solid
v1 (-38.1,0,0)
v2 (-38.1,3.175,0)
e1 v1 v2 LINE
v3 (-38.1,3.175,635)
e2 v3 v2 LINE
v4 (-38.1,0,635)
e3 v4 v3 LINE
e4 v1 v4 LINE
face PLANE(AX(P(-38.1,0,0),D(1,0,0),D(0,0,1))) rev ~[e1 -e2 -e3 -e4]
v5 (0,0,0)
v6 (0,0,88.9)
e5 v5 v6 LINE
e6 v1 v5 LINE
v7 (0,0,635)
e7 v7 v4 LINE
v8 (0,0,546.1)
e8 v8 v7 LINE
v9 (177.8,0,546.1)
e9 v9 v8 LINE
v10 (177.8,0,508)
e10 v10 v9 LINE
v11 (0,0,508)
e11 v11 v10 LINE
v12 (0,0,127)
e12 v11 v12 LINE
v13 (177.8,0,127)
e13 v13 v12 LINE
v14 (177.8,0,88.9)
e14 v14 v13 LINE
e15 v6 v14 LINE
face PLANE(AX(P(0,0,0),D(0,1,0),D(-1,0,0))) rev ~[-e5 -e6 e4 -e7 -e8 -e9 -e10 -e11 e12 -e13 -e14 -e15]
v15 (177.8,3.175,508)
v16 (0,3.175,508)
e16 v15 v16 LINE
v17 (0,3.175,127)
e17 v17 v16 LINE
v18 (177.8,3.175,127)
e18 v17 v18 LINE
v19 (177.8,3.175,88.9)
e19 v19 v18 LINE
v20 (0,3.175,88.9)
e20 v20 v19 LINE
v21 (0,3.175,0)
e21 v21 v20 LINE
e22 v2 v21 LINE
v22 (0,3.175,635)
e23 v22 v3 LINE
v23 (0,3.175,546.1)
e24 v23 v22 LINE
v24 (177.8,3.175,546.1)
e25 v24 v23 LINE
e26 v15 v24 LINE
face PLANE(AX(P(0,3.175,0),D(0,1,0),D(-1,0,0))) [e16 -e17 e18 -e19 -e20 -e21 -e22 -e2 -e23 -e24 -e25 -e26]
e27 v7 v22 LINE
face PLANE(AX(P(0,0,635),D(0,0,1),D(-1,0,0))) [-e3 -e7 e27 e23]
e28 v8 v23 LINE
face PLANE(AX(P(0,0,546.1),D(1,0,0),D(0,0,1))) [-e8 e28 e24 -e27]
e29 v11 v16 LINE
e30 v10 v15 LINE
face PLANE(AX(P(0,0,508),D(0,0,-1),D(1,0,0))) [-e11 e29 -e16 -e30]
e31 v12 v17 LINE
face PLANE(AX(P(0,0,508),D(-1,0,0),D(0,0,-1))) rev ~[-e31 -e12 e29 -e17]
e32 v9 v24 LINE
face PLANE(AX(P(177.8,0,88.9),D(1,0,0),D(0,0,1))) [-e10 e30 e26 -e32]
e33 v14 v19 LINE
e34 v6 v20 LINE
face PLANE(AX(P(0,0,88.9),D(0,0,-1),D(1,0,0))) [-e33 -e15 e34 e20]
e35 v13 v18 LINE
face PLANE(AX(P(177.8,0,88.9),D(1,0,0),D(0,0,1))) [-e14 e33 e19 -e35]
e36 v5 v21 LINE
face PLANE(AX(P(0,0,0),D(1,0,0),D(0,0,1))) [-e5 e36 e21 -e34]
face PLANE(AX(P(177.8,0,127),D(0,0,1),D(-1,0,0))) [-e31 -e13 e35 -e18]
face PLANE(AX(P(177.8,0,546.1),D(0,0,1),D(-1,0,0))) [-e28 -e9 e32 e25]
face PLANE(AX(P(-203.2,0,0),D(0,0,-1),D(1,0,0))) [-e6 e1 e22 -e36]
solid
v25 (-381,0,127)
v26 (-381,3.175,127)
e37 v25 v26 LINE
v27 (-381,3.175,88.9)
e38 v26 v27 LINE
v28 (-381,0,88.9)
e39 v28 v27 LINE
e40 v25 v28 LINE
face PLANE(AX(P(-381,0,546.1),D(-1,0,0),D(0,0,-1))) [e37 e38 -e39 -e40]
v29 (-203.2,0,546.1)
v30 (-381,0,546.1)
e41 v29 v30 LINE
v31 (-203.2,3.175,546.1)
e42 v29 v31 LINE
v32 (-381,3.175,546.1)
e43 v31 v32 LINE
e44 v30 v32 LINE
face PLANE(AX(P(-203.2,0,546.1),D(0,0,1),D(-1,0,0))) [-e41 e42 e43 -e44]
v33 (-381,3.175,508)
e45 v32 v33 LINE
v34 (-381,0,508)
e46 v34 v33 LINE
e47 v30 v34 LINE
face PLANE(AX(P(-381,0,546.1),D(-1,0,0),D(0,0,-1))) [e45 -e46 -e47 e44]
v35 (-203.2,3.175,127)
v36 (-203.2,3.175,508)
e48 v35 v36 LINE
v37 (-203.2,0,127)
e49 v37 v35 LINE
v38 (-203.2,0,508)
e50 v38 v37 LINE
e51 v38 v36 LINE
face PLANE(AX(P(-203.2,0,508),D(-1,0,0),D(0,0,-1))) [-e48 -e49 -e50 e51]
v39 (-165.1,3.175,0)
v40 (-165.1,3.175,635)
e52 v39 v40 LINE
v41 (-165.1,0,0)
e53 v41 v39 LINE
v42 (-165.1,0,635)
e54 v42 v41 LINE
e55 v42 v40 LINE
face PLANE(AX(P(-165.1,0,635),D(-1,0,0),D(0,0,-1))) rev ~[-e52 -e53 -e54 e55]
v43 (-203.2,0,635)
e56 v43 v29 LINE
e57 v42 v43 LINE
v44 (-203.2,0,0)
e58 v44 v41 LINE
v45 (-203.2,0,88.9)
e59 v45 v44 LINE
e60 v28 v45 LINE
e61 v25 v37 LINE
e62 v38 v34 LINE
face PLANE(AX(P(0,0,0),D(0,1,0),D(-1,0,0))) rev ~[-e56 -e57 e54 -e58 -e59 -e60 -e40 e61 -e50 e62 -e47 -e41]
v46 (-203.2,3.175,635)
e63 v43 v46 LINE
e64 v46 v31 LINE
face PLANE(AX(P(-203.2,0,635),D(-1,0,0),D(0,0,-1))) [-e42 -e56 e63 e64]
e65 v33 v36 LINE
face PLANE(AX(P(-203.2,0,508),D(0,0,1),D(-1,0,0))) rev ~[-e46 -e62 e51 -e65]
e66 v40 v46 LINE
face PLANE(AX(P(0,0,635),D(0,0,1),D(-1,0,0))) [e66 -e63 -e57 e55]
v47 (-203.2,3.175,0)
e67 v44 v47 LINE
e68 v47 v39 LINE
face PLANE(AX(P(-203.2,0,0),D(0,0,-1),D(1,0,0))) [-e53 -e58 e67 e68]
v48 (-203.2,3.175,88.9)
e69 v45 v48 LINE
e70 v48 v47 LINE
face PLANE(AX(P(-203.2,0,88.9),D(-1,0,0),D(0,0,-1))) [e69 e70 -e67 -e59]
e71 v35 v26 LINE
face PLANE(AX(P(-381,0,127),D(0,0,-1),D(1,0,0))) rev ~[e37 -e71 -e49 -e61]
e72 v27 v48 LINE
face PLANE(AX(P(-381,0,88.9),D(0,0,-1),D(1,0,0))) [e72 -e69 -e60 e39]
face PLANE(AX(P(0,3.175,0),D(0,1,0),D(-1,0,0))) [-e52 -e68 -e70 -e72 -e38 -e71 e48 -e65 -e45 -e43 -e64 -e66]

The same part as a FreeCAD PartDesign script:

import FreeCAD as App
import Part
import Sketcher

V = App.Vector
Q = App.Units.Quantity

doc = App.newDocument("Part")
params = doc.addObject("Spreadsheet::Sheet", "Params")
for row, (alias, value) in enumerate([
    ("sketch1_width", "7 in"),
    ("sketch1_height", "3.5 in"),
    ("pad1_length", "0.125 in"),
    ("sketch2_width", "5 in"),
    ("sketch2_width2", "7 in"),
    ("sketch2_height", "25 in"),
    ("pocket1_length", "1 in"),
], start=1):
    params.set(f"A{row}", alias)
    params.set(f"B{row}", "=" + value)
    params.setAlias(f"B{row}", alias)

body = doc.addObject("PartDesign::Body", "Body")
body.AllowCompound = True

# Sketch on XZ plane
sketch1 = doc.addObject("Sketcher::SketchObject", "Sketch")
body.addObject(sketch1)
sketch1.AttachmentSupport = (doc.XZ_Plane, [""])
sketch1.MapMode = "FlatFace"
sketch1.addGeometry([
    Part.LineSegment(V(0, 88.9, 0), V(0, 0, 0)),  # 0
    Part.LineSegment(V(0, 0, 0), V(-203.2, 0, 0)),  # 1
    Part.LineSegment(V(-203.2, 0, 0), V(-203.2, 88.9, 0)),  # 2
    Part.LineSegment(V(-203.2, 88.9, 0), V(-381, 88.9, 0)),  # 3
    Part.LineSegment(V(-381, 88.9, 0), V(-381, 546.1, 0)),  # 4
    Part.LineSegment(V(-381, 546.1, 0), V(-203.2, 546.1, 0)),  # 5
    Part.LineSegment(V(-203.2, 546.1, 0), V(-203.2, 635, 0)),  # 6
    Part.LineSegment(V(-203.2, 635, 0), V(0, 635, 0)),  # 7
    Part.LineSegment(V(0, 635, 0), V(0, 546.1, 0)),  # 8
    Part.LineSegment(V(0, 546.1, 0), V(177.8, 546.1, 0)),  # 9
    Part.LineSegment(V(177.8, 546.1, 0), V(177.8, 88.9, 0)),  # 10
    Part.LineSegment(V(177.8, 88.9, 0), V(0, 88.9, 0)),  # 11
], False)
sketch1.addConstraint([
    Sketcher.Constraint("Coincident", 0, 2, 1, 1),
    Sketcher.Constraint("Coincident", 1, 2, 2, 1),
    Sketcher.Constraint("Coincident", 2, 2, 3, 1),
    Sketcher.Constraint("Coincident", 3, 2, 4, 1),
    Sketcher.Constraint("Coincident", 4, 2, 5, 1),
    Sketcher.Constraint("Coincident", 5, 2, 6, 1),
    Sketcher.Constraint("Coincident", 6, 2, 7, 1),
    Sketcher.Constraint("Coincident", 7, 2, 8, 1),
    Sketcher.Constraint("Coincident", 8, 2, 9, 1),
    Sketcher.Constraint("Coincident", 9, 2, 10, 1),
    Sketcher.Constraint("Coincident", 10, 2, 11, 1),
    Sketcher.Constraint("Coincident", 11, 2, 0, 1),
    Sketcher.Constraint("Vertical", 0),
    Sketcher.Constraint("Horizontal", 1),
    Sketcher.Constraint("Vertical", 2),
    Sketcher.Constraint("Horizontal", 3),
    Sketcher.Constraint("Vertical", 4),
    Sketcher.Constraint("Horizontal", 5),
    Sketcher.Constraint("Vertical", 6),
    Sketcher.Constraint("Horizontal", 7),
    Sketcher.Constraint("Vertical", 8),
    Sketcher.Constraint("Horizontal", 9),
    Sketcher.Constraint("Vertical", 10),
    Sketcher.Constraint("Horizontal", 11),
    Sketcher.Constraint("Coincident", 0, 2, -1, 1),
    Sketcher.Constraint("PointOnObject", 7, 2, -2),
    Sketcher.Constraint("Horizontal", 5, 2, 8, 2),
    Sketcher.Constraint("Horizontal", 3, 2, 10, 2),
    Sketcher.Constraint("Vertical", 2, 2, 5, 2),
    Sketcher.Constraint("Equal", 5, 9),
    Sketcher.Constraint("Equal", 2, 6),
    Sketcher.Constraint("DistanceX", 3, 2, 3, 1, Q("7 in")),
    Sketcher.Constraint("DistanceY", 0, 2, 0, 1, Q("3.5 in")),
    Sketcher.Constraint("DistanceY", -1, 1, 6, 2, Q("25 in")),
    Sketcher.Constraint("DistanceX", 4, 2, 9, 2, Q("22 in")),
])
sketch1.setExpression("Constraints[31]", "Params.sketch1_width")
sketch1.setExpression("Constraints[32]", "Params.sketch1_height")
pad1 = doc.addObject("PartDesign::Pad", "Pad")
body.addObject(pad1)
pad1.Profile = sketch1
pad1.setExpression("Length", "Params.pad1_length")
pad1.Reversed = True

# Sketch on XZ plane
sketch2 = doc.addObject("Sketcher::SketchObject", "Sketch001")
body.addObject(sketch2)
sketch2.AttachmentSupport = (doc.XZ_Plane, [""])
sketch2.MapMode = "FlatFace"
sketch2.addGeometry([
    Part.LineSegment(V(-165.1, 0, 0), V(-38.1, 0, 0)),  # 0
    Part.LineSegment(V(-38.1, 0, 0), V(-38.1, 635, 0)),  # 1
    Part.LineSegment(V(-38.1, 635, 0), V(-165.1, 635, 0)),  # 2
    Part.LineSegment(V(-165.1, 635, 0), V(-165.1, 0, 0)),  # 3
    Part.LineSegment(V(0, 508, 0), V(0, 127, 0)),  # 4
    Part.LineSegment(V(0, 127, 0), V(177.8, 127, 0)),  # 5
    Part.LineSegment(V(177.8, 127, 0), V(177.8, 508, 0)),  # 6
    Part.LineSegment(V(177.8, 508, 0), V(0, 508, 0)),  # 7
    Part.LineSegment(V(-203.2, 127, 0), V(-203.2, 508, 0)),  # 8
    Part.LineSegment(V(-203.2, 508, 0), V(-381, 508, 0)),  # 9
    Part.LineSegment(V(-381, 508, 0), V(-381, 127, 0)),  # 10
    Part.LineSegment(V(-381, 127, 0), V(-203.2, 127, 0)),  # 11
], False)
sketch2.addConstraint([
    Sketcher.Constraint("Coincident", 0, 2, 1, 1),
    Sketcher.Constraint("Coincident", 1, 2, 2, 1),
    Sketcher.Constraint("Coincident", 2, 2, 3, 1),
    Sketcher.Constraint("Coincident", 3, 2, 0, 1),
    Sketcher.Constraint("Coincident", 4, 2, 5, 1),
    Sketcher.Constraint("Coincident", 5, 2, 6, 1),
    Sketcher.Constraint("Coincident", 6, 2, 7, 1),
    Sketcher.Constraint("Coincident", 7, 2, 4, 1),
    Sketcher.Constraint("Coincident", 8, 2, 9, 1),
    Sketcher.Constraint("Coincident", 9, 2, 10, 1),
    Sketcher.Constraint("Coincident", 10, 2, 11, 1),
    Sketcher.Constraint("Coincident", 11, 2, 8, 1),
    Sketcher.Constraint("Horizontal", 0),
    Sketcher.Constraint("Vertical", 1),
    Sketcher.Constraint("Horizontal", 2),
    Sketcher.Constraint("Vertical", 3),
    Sketcher.Constraint("Vertical", 4),
    Sketcher.Constraint("Horizontal", 5),
    Sketcher.Constraint("Vertical", 6),
    Sketcher.Constraint("Horizontal", 7),
    Sketcher.Constraint("Vertical", 8),
    Sketcher.Constraint("Horizontal", 9),
    Sketcher.Constraint("Vertical", 10),
    Sketcher.Constraint("Horizontal", 11),
    Sketcher.Constraint("PointOnObject", 0, 2, -1),
    Sketcher.Constraint("PointOnObject", 4, 2, -2),
    Sketcher.Constraint("Horizontal", 7, 2, 8, 2),
    Sketcher.Constraint("Horizontal", 5, 2, 10, 2),
    Sketcher.Constraint("Equal", 7, 9),
    Sketcher.Constraint("DistanceX", 0, 1, 0, 2, Q("5 in")),
    Sketcher.Constraint("DistanceX", 5, 1, 5, 2, Q("7 in")),
    Sketcher.Constraint("DistanceY", -1, 1, 4, 2, Q("5 in")),
    Sketcher.Constraint("DistanceY", 6, 2, 1, 2, Q("5 in")),
    Sketcher.Constraint("DistanceX", 0, 2, -1, 1, Q("1.5 in")),
    Sketcher.Constraint("DistanceX", 8, 2, 2, 2, Q("1.5 in")),
    Sketcher.Constraint("DistanceY", 1, 1, 1, 2, Q("25 in")),
])
sketch2.setExpression("Constraints[29]", "Params.sketch2_width")
sketch2.setExpression("Constraints[30]", "Params.sketch2_width2")
sketch2.setExpression("Constraints[35]", "Params.sketch2_height")
pocket1 = doc.addObject("PartDesign::Pocket", "Pocket")
body.addObject(pocket1)
pocket1.Profile = sketch2
pocket1.setExpression("Length", "Params.pocket1_length")

doc.recompute()
